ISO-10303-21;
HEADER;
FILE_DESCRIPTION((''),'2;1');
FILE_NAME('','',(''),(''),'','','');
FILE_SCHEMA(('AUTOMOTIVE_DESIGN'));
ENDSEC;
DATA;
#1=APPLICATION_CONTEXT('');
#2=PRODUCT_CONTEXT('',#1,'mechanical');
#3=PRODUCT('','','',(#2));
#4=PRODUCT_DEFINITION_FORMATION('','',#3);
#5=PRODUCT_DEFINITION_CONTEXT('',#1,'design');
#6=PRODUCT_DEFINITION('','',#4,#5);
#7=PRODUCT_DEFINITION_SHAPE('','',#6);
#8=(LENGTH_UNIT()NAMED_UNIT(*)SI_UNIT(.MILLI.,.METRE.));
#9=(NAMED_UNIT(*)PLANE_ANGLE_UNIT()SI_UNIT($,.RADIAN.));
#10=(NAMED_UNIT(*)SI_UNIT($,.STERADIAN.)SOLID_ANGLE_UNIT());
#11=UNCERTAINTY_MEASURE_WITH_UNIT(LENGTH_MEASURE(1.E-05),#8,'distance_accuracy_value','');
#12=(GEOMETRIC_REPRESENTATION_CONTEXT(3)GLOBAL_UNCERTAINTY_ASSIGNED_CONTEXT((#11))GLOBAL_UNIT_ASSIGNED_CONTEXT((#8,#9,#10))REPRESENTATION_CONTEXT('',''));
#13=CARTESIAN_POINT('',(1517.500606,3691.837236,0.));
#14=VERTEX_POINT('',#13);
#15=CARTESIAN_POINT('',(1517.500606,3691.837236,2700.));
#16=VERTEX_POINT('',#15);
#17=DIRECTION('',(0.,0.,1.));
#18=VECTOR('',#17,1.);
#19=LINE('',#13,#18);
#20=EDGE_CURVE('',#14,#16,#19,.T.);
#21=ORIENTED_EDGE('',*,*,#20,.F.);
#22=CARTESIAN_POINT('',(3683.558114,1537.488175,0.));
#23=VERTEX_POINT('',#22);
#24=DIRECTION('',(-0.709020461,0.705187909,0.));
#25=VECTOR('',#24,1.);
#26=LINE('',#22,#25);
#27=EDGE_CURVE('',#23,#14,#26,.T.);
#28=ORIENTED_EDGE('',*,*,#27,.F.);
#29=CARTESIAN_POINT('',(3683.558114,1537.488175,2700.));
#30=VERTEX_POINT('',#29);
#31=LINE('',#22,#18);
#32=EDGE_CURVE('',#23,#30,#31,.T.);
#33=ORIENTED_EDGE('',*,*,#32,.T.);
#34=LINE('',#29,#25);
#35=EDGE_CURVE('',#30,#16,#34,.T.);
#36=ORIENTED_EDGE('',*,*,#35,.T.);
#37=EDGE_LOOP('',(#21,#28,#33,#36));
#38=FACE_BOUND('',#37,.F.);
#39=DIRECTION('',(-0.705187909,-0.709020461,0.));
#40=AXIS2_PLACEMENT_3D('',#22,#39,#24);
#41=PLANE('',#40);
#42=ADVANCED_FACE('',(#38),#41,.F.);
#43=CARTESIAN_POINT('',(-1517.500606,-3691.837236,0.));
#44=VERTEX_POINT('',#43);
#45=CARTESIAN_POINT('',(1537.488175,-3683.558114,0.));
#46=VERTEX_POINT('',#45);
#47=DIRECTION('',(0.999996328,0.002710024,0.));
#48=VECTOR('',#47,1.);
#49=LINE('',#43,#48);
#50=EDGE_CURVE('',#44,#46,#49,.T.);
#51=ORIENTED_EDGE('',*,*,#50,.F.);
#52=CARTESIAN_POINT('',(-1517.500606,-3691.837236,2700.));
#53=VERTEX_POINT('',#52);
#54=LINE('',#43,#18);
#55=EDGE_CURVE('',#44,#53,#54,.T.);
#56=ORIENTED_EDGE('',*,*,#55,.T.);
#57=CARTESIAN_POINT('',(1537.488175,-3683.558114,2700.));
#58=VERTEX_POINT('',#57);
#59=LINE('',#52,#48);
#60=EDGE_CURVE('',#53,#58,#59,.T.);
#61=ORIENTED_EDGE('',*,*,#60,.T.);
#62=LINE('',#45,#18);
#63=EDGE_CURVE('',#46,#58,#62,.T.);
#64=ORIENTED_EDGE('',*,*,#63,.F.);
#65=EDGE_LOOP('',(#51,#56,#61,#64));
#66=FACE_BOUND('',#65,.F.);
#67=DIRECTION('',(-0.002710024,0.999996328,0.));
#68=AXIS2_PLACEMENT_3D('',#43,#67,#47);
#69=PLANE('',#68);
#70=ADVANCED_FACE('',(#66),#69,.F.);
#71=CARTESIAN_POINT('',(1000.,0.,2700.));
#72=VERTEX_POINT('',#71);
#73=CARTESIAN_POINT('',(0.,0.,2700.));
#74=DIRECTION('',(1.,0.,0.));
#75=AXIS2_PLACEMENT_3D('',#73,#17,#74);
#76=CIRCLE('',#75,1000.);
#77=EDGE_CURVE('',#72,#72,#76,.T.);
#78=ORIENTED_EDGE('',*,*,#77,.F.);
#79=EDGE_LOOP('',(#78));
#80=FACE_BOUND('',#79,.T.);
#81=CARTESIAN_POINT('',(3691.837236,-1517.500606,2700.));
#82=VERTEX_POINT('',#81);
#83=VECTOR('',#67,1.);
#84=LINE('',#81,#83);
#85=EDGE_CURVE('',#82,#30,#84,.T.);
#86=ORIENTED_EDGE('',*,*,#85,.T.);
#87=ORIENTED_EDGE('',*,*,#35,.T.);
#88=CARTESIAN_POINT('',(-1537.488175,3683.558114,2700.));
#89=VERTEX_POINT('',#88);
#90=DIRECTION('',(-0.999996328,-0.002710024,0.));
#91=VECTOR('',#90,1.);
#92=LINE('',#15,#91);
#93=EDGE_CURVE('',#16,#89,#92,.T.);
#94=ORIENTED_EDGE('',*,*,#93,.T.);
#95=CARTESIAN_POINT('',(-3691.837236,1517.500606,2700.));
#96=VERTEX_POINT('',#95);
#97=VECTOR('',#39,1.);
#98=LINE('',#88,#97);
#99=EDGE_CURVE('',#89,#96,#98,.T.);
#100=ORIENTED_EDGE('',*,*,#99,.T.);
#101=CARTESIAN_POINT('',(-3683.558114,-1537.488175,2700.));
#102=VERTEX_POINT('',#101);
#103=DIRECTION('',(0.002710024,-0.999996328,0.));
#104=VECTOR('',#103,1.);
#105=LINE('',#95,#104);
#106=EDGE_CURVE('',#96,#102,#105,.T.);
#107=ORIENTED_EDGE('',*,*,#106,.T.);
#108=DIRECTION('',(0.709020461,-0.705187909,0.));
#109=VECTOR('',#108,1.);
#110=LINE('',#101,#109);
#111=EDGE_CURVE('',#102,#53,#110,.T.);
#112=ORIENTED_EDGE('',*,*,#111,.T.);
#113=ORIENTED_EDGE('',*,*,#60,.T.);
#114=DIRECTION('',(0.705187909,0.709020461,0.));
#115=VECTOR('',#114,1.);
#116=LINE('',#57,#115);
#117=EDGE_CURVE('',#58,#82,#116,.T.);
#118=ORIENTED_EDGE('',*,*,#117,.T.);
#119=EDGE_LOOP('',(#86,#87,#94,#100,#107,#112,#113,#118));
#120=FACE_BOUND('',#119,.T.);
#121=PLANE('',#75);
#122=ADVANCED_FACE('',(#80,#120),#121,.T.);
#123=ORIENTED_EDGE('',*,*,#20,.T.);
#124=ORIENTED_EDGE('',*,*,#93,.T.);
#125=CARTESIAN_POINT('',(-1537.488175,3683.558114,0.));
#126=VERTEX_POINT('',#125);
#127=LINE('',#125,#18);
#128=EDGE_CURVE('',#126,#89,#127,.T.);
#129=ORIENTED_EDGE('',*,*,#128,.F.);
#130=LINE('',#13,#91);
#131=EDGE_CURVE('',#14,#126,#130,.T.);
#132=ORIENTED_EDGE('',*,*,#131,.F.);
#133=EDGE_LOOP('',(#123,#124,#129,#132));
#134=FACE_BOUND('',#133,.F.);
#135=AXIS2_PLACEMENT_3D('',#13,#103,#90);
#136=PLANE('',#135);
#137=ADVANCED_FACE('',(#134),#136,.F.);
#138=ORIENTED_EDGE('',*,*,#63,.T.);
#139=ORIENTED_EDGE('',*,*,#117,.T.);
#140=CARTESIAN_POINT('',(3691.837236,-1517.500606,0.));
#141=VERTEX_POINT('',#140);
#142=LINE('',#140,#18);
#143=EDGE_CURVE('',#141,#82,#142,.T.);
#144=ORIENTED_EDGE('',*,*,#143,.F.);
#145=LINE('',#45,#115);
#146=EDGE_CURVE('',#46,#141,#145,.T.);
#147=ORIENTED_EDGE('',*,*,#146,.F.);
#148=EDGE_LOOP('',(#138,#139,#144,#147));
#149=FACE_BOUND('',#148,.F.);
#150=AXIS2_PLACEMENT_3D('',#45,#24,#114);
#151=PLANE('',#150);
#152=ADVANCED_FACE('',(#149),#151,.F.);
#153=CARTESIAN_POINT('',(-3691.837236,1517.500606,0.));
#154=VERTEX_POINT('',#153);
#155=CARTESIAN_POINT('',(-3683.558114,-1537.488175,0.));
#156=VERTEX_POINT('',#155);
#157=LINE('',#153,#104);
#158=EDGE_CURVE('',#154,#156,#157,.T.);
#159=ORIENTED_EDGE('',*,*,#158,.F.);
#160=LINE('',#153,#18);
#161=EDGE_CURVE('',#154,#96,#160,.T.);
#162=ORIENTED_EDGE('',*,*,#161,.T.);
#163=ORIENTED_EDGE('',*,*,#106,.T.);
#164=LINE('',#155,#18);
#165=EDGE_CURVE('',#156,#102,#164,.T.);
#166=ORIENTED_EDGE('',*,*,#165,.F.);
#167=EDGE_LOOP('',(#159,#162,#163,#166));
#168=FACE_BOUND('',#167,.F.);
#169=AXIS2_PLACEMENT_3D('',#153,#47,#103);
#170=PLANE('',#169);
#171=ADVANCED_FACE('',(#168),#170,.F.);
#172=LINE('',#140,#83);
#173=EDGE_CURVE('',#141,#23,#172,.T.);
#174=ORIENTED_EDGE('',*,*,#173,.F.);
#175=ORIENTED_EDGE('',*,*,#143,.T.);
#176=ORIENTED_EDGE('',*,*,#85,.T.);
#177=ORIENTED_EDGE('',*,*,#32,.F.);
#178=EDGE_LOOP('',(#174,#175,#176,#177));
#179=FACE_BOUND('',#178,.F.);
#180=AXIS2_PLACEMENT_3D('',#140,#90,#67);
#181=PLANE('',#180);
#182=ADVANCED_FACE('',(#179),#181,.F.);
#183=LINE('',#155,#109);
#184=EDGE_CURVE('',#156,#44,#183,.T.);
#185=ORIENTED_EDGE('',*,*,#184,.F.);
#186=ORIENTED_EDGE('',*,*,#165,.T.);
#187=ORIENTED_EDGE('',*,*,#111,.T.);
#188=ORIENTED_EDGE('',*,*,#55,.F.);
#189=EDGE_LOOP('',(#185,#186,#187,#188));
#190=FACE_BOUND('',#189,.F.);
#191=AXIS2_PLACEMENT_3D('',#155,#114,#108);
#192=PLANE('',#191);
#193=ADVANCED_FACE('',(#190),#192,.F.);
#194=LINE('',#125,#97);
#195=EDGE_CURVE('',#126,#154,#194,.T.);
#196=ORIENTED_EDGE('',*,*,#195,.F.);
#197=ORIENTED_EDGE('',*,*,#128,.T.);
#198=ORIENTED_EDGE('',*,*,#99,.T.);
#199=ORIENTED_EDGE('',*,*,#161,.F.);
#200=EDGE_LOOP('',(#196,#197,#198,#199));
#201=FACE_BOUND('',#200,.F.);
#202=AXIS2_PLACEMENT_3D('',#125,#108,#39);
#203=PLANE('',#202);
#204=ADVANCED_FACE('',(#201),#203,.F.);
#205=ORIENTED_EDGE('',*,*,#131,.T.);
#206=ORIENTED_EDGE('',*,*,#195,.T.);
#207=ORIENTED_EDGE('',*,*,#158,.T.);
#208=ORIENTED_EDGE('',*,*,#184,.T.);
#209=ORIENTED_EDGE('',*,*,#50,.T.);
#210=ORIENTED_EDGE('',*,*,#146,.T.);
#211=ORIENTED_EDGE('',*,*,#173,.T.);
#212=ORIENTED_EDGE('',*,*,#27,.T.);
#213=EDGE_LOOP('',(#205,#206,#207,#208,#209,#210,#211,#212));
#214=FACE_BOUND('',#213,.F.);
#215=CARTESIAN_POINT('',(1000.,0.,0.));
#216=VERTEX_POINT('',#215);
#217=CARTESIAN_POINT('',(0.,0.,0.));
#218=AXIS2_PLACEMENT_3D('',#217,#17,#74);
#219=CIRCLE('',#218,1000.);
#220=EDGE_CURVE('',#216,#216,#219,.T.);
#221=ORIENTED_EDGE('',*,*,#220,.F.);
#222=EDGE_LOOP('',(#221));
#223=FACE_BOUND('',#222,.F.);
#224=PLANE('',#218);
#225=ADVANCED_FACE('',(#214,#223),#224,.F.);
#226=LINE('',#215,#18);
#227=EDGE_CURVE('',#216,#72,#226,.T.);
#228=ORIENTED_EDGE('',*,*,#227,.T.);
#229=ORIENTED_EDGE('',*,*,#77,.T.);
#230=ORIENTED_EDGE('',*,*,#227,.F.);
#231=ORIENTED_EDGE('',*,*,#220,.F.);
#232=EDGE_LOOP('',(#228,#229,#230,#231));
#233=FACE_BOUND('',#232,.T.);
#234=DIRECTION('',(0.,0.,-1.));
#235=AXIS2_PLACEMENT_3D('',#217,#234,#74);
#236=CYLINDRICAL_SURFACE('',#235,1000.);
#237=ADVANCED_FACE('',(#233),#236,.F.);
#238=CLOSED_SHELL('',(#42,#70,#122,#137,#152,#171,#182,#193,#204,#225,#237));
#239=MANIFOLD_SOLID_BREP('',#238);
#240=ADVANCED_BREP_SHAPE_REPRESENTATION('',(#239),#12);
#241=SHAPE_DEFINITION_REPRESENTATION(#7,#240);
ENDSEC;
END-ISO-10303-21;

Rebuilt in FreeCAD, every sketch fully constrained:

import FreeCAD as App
import Part
import Sketcher
from FreeCAD import Vector

doc = App.newDocument("Part")
params = doc.addObject("Spreadsheet::Sheet", "Params")
for row, (alias, value) in enumerate([
    ("sketch1_diameter", "2000 mm"),
    ("sketch1_length", "3055.000001 mm"),
    ("pad1_length", "2700 mm"),
], start=1):
    params.set(f"A{row}", alias)
    params.set(f"B{row}", "=" + value)
    params.setAlias(f"B{row}", alias)

body = doc.addObject("PartDesign::Body", "Body")

sketch1 = body.newObject("Sketcher::SketchObject", "Sketch")
sketch1.AttachmentSupport = (doc.getObject("XY_Plane"), [""])
sketch1.MapMode = "FlatFace"
sketch1.addGeometry([
    Part.LineSegment(Vector(-3683.558114, -1537.488175, 0), Vector(-1517.500606, -3691.837236, 0)),
    Part.LineSegment(Vector(-1517.500606, -3691.837236, 0), Vector(1537.488175, -3683.558114, 0)),
    Part.LineSegment(Vector(1537.488175, -3683.558114, 0), Vector(3691.837236, -1517.500606, 0)),
    Part.LineSegment(Vector(3691.837236, -1517.500606, 0), Vector(3683.558114, 1537.488175, 0)),
    Part.LineSegment(Vector(3683.558114, 1537.488175, 0), Vector(1517.500606, 3691.837236, 0)),
    Part.LineSegment(Vector(1517.500606, 3691.837236, 0), Vector(-1537.488175, 3683.558114, 0)),
    Part.LineSegment(Vector(-1537.488175, 3683.558114, 0), Vector(-3691.837236, 1517.500606, 0)),
    Part.LineSegment(Vector(-3691.837236, 1517.500606, 0), Vector(-3683.558114, -1537.488175, 0)),
    Part.Circle(Vector(0, 0, 0), Vector(0, 0, 1), 1000),
], False)
sketch1.addConstraint([
    Sketcher.Constraint("Coincident", 0, 2, 1, 1),
    Sketcher.Constraint("Coincident", 1, 2, 2, 1),
    Sketcher.Constraint("Coincident", 2, 2, 3, 1),
    Sketcher.Constraint("Coincident", 3, 2, 4, 1),
    Sketcher.Constraint("Coincident", 4, 2, 5, 1),
    Sketcher.Constraint("Coincident", 5, 2, 6, 1),
    Sketcher.Constraint("Coincident", 6, 2, 7, 1),
    Sketcher.Constraint("Coincident", 7, 2, 0, 1),
    Sketcher.Constraint("Coincident", 8, 3, -1, 1),
    Sketcher.Constraint("Symmetric", 0, 2, 4, 2, -1, 1),
    Sketcher.Constraint("Symmetric", 1, 2, 5, 2, -1, 1),
    Sketcher.Constraint("Symmetric", 2, 2, 6, 2, -1, 1),
    Sketcher.Constraint("Symmetric", 3, 2, 7, 2, -1, 1),
    Sketcher.Constraint("Perpendicular", 0, 2),
    Sketcher.Constraint("Perpendicular", 1, 3),
    Sketcher.Constraint("Equal", 0, 1),
    Sketcher.Constraint("Equal", 1, 2),
    Sketcher.Constraint("Equal", 2, 3),
    Sketcher.Constraint("Diameter", 8, 2000.0),
    Sketcher.Constraint("Distance", 0, 3055.000001),
    Sketcher.Constraint("DistanceY", 0, 2, 1, 2, 8.279122),
    Sketcher.Constraint("DistanceX", 1, 2, 2, 2, 2154.349061),
])
sketch1.setExpression("Constraints[18]", "Params.sketch1_diameter")
sketch1.setExpression("Constraints[19]", "Params.sketch1_length")
pad1 = body.newObject("PartDesign::Pad", "Pad")
pad1.Profile = sketch1
pad1.setExpression("Length", "Params.pad1_length")

doc.recompute()
